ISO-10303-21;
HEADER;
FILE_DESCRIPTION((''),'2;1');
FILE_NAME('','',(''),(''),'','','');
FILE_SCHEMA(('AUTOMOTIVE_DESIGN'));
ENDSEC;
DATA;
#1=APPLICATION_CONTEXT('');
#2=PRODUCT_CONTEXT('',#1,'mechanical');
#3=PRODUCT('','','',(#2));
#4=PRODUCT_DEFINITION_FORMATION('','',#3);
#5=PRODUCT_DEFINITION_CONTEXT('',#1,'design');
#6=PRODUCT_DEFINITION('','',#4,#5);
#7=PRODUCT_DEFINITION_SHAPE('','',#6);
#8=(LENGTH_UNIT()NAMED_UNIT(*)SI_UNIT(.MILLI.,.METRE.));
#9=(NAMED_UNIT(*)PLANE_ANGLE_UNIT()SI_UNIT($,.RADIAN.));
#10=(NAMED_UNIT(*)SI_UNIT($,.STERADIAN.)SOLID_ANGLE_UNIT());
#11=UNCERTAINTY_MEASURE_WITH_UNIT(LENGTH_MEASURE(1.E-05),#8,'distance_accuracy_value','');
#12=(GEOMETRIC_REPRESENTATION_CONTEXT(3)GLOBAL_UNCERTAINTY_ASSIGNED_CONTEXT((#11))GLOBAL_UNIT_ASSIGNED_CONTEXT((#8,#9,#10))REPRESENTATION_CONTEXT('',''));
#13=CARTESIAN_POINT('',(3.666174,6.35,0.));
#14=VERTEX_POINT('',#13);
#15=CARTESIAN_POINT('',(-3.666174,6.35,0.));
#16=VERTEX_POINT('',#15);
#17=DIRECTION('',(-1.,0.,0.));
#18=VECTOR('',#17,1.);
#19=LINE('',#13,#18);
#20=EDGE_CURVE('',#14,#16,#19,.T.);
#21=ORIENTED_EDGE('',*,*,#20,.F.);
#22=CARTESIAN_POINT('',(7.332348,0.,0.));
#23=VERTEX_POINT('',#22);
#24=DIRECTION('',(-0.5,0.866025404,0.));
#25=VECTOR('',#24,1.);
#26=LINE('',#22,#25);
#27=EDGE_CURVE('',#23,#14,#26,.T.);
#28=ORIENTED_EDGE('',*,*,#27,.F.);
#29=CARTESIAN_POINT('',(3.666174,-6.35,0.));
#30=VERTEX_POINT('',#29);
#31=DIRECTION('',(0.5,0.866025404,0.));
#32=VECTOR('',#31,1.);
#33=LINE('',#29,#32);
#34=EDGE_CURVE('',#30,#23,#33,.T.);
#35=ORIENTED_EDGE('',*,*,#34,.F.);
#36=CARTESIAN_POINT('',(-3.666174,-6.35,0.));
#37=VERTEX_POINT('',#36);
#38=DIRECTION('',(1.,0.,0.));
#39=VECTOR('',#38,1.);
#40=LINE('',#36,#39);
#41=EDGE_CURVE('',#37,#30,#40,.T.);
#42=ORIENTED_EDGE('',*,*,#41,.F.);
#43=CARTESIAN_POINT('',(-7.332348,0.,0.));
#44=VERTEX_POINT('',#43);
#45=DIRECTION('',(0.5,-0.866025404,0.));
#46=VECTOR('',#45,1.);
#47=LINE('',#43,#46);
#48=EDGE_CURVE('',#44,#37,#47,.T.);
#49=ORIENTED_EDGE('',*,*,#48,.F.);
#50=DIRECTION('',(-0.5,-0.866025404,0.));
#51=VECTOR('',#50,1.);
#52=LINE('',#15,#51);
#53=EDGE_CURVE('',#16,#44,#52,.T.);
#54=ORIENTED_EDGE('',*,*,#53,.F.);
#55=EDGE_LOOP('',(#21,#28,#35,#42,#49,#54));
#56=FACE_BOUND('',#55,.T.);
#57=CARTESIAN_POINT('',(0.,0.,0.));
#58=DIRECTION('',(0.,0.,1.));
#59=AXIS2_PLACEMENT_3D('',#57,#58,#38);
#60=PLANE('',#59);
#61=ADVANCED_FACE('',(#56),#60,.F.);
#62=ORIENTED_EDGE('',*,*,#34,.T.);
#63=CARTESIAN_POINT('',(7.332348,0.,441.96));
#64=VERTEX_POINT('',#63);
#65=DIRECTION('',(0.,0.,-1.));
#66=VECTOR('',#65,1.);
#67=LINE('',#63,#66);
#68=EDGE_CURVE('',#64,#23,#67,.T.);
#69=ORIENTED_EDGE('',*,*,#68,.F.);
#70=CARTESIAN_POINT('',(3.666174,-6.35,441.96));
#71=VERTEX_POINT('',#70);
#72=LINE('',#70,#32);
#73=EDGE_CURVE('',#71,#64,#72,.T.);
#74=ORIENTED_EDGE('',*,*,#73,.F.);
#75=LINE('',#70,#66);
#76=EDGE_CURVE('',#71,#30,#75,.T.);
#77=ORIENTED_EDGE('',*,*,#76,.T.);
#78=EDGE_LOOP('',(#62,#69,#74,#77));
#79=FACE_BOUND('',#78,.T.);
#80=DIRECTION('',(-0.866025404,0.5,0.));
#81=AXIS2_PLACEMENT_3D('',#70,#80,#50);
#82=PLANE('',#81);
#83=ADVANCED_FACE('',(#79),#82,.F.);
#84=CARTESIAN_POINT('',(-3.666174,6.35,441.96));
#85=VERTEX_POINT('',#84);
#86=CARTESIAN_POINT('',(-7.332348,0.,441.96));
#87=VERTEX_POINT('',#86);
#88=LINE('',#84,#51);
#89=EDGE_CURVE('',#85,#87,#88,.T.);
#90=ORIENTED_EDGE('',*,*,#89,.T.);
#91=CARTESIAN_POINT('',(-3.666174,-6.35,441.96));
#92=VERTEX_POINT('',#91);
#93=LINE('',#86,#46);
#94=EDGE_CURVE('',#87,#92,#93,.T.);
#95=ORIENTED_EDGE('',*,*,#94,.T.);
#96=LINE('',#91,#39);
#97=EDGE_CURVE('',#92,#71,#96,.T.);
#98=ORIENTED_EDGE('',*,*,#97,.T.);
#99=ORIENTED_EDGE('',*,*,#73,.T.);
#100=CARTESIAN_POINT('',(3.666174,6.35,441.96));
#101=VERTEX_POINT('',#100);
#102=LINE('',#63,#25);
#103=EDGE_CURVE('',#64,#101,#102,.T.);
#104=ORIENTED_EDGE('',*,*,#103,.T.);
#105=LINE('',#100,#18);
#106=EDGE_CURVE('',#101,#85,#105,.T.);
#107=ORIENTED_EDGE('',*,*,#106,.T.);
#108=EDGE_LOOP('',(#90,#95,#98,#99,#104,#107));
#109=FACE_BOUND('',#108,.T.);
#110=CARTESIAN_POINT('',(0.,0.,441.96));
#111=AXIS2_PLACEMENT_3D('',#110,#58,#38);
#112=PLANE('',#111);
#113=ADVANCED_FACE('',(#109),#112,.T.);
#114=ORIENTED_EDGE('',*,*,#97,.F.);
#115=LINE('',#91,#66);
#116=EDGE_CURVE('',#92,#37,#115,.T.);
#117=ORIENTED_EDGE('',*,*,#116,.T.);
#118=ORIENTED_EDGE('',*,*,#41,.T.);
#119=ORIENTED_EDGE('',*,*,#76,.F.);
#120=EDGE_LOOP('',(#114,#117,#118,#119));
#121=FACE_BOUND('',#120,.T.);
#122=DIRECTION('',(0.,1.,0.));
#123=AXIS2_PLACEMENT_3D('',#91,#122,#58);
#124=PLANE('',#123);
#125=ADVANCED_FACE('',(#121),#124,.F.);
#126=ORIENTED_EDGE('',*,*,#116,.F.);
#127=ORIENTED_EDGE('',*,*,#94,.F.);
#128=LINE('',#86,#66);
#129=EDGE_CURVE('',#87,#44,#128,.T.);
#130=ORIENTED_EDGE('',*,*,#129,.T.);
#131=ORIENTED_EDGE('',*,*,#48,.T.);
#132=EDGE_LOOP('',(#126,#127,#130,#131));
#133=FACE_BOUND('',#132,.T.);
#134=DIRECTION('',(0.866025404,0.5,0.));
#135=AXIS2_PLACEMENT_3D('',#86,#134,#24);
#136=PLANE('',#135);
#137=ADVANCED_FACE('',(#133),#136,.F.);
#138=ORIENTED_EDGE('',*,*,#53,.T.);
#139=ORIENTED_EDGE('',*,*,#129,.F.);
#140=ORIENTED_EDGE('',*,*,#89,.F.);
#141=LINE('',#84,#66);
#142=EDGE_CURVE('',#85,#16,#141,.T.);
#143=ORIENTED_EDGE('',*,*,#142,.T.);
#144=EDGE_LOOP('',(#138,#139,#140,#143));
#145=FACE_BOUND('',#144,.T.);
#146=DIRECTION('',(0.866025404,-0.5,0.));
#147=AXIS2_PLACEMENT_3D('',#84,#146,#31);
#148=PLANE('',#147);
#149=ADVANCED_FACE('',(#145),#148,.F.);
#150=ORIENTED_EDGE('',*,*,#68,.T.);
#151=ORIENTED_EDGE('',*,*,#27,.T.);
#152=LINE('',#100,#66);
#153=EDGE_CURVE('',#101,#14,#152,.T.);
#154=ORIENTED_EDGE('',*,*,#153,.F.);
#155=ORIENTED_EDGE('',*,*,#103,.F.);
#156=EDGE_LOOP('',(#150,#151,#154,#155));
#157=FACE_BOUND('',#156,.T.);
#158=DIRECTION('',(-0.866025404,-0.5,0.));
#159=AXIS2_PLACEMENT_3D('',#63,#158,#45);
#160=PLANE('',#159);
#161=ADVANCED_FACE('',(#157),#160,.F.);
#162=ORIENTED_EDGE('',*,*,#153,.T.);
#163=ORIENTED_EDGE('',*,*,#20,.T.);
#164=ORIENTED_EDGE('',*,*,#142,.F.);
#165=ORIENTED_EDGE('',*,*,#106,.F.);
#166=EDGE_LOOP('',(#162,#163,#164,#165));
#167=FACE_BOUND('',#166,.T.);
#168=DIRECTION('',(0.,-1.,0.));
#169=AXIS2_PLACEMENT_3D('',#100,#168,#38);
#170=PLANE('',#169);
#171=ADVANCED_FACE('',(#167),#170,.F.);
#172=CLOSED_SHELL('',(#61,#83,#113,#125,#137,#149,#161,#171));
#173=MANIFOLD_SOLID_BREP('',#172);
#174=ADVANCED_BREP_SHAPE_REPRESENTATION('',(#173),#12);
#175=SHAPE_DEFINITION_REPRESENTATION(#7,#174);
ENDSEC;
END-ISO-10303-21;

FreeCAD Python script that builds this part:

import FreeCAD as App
import Part
import Sketcher
from FreeCAD import Vector
Q = App.Units.Quantity


def add_polygon(sketch, points):
    """Adds a closed chain of lines whose ends are joined by coincident constraints."""
    first, n = sketch.GeometryCount, len(points)
    for a, b in zip(points, points[1:] + points[:1]):
        sketch.addGeometry(Part.LineSegment(App.Vector(*a, 0), App.Vector(*b, 0)), False)
    for i in range(n):
        sketch.addConstraint(Sketcher.Constraint("Coincident", first + i, 2, first + (i + 1) % n, 1))

doc = App.newDocument("Part")
params = doc.addObject("Spreadsheet::Sheet", "Params")
for row, (alias, value) in enumerate([
    ("pad1_length", "17.4 in"),
], start=1):
    params.set(f"A{row}", alias)
    params.set(f"B{row}", "=" + value)
    params.setAlias(f"B{row}", alias)

body = doc.addObject("PartDesign::Body", "Body")

sketch1 = body.newObject("Sketcher::SketchObject", "Sketch")
sketch1.AttachmentSupport = (doc.getObject("XY_Plane"), [""])
sketch1.MapMode = "FlatFace"
add_polygon(sketch1, [(7, 0), (4, 6), (-4, 6), (-7, 0), (-4, -6), (4, -6)])
sketch1.addConstraint([
    Sketcher.Constraint("Horizontal", 1),
    Sketcher.Constraint("Horizontal", 4),
    Sketcher.Constraint("Symmetric", 0, 2, 3, 2, -1, 1),
    Sketcher.Constraint("Symmetric", 2, 2, 5, 2, -1, 1),
    Sketcher.Constraint("PointOnObject", 2, 2, -1),
    Sketcher.Constraint("Parallel", 2, 5),
    Sketcher.Constraint("Vertical", 1, 2, 3, 2),
    Sketcher.Constraint("Angle", 0, Q("120 deg")),
    Sketcher.Constraint("DistanceY", 3, 2, 1, 2, Q("0.5 in")),
    Sketcher.Constraint("DistanceX", 1, 2, 1, 1, Q("7.332348 mm")),
])
pad1 = body.newObject("PartDesign::Pad", "Pad")
pad1.Profile = sketch1
pad1.setExpression("Length", "Params.pad1_length")

doc.recompute()
